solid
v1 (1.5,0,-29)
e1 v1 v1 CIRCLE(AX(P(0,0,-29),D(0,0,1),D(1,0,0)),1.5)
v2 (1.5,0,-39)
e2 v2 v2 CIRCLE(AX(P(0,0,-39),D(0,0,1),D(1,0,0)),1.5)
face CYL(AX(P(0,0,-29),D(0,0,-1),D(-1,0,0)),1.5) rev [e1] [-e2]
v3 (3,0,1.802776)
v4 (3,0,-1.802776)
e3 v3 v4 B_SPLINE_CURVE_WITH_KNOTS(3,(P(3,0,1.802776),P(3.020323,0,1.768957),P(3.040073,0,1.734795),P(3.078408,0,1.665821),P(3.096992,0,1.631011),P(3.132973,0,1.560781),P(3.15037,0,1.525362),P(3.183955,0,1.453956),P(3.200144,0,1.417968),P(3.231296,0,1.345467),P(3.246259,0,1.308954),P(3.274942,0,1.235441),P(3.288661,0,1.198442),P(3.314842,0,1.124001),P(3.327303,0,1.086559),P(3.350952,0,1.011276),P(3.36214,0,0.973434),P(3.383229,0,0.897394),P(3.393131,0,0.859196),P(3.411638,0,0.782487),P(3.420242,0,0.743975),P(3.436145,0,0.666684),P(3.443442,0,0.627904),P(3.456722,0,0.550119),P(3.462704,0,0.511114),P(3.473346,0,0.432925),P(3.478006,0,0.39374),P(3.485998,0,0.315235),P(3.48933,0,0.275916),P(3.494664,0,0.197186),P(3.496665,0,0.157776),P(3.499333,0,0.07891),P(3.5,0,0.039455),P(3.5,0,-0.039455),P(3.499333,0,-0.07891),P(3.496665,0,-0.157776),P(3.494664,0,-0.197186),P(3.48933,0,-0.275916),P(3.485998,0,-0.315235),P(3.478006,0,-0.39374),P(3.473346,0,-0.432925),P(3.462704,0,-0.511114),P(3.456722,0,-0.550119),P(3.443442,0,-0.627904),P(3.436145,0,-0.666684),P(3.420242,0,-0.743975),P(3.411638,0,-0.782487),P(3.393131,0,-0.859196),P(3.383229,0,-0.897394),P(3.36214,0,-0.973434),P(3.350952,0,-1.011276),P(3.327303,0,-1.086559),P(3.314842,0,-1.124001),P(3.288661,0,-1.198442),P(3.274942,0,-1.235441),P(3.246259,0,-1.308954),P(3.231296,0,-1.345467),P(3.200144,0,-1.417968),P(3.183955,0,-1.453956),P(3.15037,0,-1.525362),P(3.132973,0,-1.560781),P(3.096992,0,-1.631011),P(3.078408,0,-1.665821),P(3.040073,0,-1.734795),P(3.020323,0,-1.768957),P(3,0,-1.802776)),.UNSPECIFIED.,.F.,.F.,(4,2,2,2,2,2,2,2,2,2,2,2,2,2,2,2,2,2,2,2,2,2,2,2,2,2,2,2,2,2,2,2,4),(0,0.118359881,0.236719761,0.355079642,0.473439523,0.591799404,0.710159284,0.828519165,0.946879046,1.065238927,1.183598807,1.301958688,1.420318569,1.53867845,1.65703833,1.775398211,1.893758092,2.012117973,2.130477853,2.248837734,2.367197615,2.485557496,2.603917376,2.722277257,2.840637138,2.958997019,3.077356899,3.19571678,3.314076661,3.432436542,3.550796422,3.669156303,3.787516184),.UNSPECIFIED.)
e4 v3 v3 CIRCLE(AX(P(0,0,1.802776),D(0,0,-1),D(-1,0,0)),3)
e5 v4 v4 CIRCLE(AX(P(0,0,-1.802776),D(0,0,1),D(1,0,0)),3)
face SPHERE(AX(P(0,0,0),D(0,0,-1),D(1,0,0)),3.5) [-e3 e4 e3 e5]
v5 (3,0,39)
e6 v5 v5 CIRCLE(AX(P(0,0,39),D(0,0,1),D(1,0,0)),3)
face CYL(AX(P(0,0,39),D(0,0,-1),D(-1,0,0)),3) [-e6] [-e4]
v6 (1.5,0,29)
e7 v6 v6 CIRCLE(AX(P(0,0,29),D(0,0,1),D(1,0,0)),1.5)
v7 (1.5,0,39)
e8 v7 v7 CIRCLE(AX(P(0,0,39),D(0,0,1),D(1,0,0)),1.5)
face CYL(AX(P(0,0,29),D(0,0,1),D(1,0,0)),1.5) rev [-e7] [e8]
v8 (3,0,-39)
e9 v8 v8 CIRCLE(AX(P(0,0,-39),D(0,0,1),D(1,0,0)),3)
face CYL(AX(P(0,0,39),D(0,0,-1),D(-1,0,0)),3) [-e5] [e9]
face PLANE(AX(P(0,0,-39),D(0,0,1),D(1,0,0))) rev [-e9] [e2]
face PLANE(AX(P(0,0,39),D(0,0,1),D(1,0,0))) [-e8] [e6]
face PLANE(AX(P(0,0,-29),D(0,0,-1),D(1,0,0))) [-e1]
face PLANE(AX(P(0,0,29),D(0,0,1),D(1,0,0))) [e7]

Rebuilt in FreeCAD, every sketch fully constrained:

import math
import FreeCAD as App
import Part
import Sketcher

V = App.Vector

doc = App.newDocument("Part")
body = doc.addObject("PartDesign::Body", "Body")

sketch1 = doc.addObject("Sketcher::SketchObject", "Sketch")
body.addObject(sketch1)
sketch1.AttachmentSupport = (doc.XY_Plane, [""])
sketch1.MapMode = "FlatFace"
sketch1.addGeometry(Part.Circle(V(0, 0, 0), V(0, 0, 1), 3), False)
sketch1.addConstraint(Sketcher.Constraint("Coincident", 0, 3, -1, 1))
sketch1.addConstraint(Sketcher.Constraint("Diameter", 0, 6.0))
pad1 = doc.addObject("PartDesign::Pad", "Pad")
body.addObject(pad1)
pad1.Profile = sketch1
pad1.Length = 78
pad1.Midplane = True

sketch2 = doc.addObject("Sketcher::SketchObject", "Sketch001")
body.addObject(sketch2)
sketch2.AttachmentSupport = (doc.XY_Plane, [""])
sketch2.MapMode = "FlatFace"
sketch2.AttachmentOffset = App.Placement(V(0, 0, 39), App.Rotation())
sketch2.addGeometry(Part.Circle(V(0, 0, 0), V(0, 0, 1), 1.5), False)
sketch2.addConstraint(Sketcher.Constraint("Coincident", 0, 3, -1, 1))
sketch2.addConstraint(Sketcher.Constraint("Diameter", 0, 3.0))
pocket1 = doc.addObject("PartDesign::Pocket", "Pocket")
body.addObject(pocket1)
pocket1.Profile = sketch2
pocket1.Length = 10
doc.recompute()

mirrored = doc.addObject("PartDesign::Mirrored", "Mirrored")
body.addObject(mirrored)
mirrored.Originals = [pocket1]
mirrored.MirrorPlane = (doc.XY_Plane, [""])
body.Tip = mirrored

sketch3 = doc.addObject("Sketcher::SketchObject", "Sketch002")
body.addObject(sketch3)
sketch3.AttachmentSupport = (doc.XZ_Plane, [""])
sketch3.MapMode = "FlatFace"
sketch3.addGeometry(Part.LineSegment(V(0, -3.5, 0), V(0, 3.5, 0)), False)
sketch3.addGeometry(Part.ArcOfCircle(Part.Circle(V(0, 0, 0), V(0, 0, 1), 3.5), math.radians(-90), math.radians(90)), False)
sketch3.addConstraint(Sketcher.Constraint("Coincident", 0, 1, 1, 1))
sketch3.addConstraint(Sketcher.Constraint("Coincident", 1, 2, 0, 2))
sketch3.addConstraint(Sketcher.Constraint("Vertical", 0))
sketch3.addConstraint(Sketcher.Constraint("Coincident", 1, 3, -1, 1))
sketch3.addConstraint(Sketcher.Constraint("PointOnObject", 0, 1, -2))
sketch3.addConstraint(Sketcher.Constraint("Radius", 1, 3.5))
revolution = doc.addObject("PartDesign::Revolution", "Revolution")
body.addObject(revolution)
revolution.Profile = sketch3
revolution.ReferenceAxis = (sketch3, ["V_Axis"])
revolution.Angle = 360

doc.recompute()
